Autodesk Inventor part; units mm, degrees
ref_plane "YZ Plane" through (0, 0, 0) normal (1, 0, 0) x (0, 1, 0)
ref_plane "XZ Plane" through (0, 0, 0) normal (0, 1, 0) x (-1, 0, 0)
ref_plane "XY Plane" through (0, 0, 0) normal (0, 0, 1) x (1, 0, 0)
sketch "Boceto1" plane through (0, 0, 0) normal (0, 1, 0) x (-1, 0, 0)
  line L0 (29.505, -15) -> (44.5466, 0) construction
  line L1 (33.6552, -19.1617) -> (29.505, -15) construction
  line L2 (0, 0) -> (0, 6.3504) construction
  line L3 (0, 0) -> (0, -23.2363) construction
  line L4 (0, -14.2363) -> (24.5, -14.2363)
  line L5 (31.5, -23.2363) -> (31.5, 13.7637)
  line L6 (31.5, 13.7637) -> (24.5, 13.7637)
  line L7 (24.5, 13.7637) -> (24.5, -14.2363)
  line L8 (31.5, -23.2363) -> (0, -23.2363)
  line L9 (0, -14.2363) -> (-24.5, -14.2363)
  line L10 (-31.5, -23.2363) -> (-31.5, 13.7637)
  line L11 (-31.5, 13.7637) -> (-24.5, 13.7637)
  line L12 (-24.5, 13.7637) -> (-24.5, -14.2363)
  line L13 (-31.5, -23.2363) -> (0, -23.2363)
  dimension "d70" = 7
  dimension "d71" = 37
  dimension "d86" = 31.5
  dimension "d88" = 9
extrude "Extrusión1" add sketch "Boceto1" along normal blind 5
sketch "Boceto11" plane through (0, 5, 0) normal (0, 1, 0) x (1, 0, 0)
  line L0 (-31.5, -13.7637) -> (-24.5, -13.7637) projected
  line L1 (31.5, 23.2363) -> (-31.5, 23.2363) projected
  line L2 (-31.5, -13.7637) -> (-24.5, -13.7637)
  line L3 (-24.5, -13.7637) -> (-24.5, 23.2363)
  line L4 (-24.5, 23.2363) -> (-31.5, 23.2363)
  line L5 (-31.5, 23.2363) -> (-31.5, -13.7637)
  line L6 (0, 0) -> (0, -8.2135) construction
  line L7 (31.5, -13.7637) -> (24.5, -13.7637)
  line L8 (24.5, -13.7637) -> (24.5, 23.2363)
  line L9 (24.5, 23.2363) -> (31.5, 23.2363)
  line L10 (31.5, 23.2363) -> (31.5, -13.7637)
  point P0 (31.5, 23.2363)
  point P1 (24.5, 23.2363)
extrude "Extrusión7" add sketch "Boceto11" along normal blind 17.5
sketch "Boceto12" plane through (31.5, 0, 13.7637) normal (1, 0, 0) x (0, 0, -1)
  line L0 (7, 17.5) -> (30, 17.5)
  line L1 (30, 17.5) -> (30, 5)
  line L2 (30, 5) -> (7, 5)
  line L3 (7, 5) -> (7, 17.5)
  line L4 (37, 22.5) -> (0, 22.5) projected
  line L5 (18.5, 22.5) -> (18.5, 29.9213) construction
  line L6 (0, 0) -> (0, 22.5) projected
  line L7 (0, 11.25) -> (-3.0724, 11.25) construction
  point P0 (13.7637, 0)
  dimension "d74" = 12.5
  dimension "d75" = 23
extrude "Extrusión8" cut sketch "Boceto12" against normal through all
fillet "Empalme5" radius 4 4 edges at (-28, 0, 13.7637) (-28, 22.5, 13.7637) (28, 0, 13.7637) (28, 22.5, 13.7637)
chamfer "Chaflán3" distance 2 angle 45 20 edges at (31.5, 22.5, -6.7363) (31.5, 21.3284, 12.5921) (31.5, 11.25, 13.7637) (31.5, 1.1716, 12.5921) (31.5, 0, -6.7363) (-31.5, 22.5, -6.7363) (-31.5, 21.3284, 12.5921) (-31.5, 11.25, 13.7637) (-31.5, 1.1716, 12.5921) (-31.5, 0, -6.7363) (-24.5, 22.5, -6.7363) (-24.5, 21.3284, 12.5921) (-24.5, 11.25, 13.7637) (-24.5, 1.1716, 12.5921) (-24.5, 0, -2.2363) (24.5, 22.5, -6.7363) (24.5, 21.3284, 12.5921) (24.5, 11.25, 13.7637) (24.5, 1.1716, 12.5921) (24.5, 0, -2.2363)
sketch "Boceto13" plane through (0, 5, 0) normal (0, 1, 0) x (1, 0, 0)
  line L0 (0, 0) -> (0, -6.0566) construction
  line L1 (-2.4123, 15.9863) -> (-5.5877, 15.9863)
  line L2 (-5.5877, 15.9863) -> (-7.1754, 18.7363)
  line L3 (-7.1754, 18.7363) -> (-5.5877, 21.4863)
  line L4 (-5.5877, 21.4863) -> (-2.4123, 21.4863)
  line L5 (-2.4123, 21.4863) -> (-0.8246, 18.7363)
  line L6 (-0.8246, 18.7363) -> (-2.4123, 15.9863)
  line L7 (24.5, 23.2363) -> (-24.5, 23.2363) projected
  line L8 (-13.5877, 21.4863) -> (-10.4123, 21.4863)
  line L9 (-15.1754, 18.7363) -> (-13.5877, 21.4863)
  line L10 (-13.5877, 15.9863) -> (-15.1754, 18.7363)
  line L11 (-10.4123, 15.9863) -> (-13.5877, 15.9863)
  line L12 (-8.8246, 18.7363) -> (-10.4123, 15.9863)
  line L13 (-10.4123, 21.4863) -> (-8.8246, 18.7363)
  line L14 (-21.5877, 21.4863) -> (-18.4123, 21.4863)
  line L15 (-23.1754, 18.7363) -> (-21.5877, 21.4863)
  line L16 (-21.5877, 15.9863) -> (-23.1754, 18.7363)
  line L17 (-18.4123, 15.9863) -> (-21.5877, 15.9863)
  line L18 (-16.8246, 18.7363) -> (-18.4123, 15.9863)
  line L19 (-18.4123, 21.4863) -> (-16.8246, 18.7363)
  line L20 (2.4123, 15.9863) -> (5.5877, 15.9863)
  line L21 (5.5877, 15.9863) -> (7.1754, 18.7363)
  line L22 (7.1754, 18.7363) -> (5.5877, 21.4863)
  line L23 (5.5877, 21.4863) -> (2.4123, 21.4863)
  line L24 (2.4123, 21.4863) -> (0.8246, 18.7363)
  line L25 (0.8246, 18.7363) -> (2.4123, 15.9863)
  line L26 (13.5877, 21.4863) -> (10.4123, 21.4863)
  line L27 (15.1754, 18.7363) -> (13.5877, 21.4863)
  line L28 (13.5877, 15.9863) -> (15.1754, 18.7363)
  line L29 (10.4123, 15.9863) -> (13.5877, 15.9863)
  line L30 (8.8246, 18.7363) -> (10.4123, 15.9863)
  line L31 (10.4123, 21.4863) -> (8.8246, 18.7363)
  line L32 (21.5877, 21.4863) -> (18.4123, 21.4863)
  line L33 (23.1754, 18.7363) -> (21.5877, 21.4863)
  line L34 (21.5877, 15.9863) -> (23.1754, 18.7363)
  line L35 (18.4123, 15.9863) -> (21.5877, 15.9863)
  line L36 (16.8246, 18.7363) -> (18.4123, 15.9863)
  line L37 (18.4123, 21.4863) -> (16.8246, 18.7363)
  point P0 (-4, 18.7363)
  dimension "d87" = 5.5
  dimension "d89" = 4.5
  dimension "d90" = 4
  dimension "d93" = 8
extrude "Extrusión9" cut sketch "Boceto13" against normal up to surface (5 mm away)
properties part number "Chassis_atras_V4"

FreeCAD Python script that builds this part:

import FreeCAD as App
import Part
import Sketcher

V = App.Vector
Q = App.Units.Quantity


def edges_at(feature, points):
    """Names of the edges that pass closest to the given points."""
    edges = feature.Shape.Edges
    near = lambda p: min(range(len(edges)), key=lambda i: edges[i].distToShape(Part.Vertex(*p))[0])
    return sorted({f"Edge{near(p) + 1}" for p in points})


def add_polygon(sketch, points):
    """Adds a closed chain of lines whose ends are joined by coincident constraints."""
    first, n = sketch.GeometryCount, len(points)
    for a, b in zip(points, points[1:] + points[:1]):
        sketch.addGeometry(Part.LineSegment(App.Vector(*a, 0), App.Vector(*b, 0)), False)
    for i in range(n):
        sketch.addConstraint(Sketcher.Constraint("Coincident", first + i, 2, first + (i + 1) % n, 1))

doc = App.newDocument("Part")
params = doc.addObject("Spreadsheet::Sheet", "Params")
for row, (alias, value) in enumerate([
    ("sketch1_width", "7 mm"),
    ("sketch1_height", "37 mm"),
    ("pad1_length", "5 mm"),
    ("sketch2_width", "7 mm"),
    ("sketch2_height", "37 mm"),
    ("pad2_length", "17.5 mm"),
    ("sketch3_height", "23 mm"),
    ("sketch3_width", "12.5 mm"),
    ("fillet_radius", "4 mm"),
    ("chamfer_size", "2 mm"),
    ("pocket2_length", "5 mm"),
], start=1):
    params.set(f"A{row}", alias)
    params.set(f"B{row}", "=" + value)
    params.setAlias(f"B{row}", alias)

body = doc.addObject("PartDesign::Body", "Body")

# Sketch on XZ plane
sketch1 = doc.addObject("Sketcher::SketchObject", "Sketch")
body.addObject(sketch1)
sketch1.AttachmentSupport = (doc.XZ_Plane, [""])
sketch1.MapMode = "FlatFace"
add_polygon(sketch1, [(-24, -14), (24, -14), (24, 14), (32, 14), (32, -23), (-32, -23), (-32, 14), (-24, 14)])  # lines 0-7
sketch1.addConstraint([
    Sketcher.Constraint("Horizontal", 0),
    Sketcher.Constraint("Vertical", 1),
    Sketcher.Constraint("Horizontal", 2),
    Sketcher.Constraint("Vertical", 3),
    Sketcher.Constraint("Horizontal", 4),
    Sketcher.Constraint("Vertical", 5),
    Sketcher.Constraint("Horizontal", 6),
    Sketcher.Constraint("Vertical", 7),
    Sketcher.Constraint("Symmetric", 2, 2, 5, 2, -2),
    Sketcher.Constraint("Equal", 2, 6),
    Sketcher.Constraint("DistanceX", 2, 1, 2, 2, 7.0),
    Sketcher.Constraint("DistanceY", 3, 2, 3, 1, 37.0),
    Sketcher.Constraint("DistanceY", 3, 2, 0, 2, 9.0),
    Sketcher.Constraint("DistanceX", -1, 1, 2, 2, 31.5),
    Sketcher.Constraint("DistanceY", 0, 2, -1, 1, 14.2363),
])
sketch1.setExpression("Constraints[18]", "Params.sketch1_width")
sketch1.setExpression("Constraints[19]", "Params.sketch1_height")
pad1 = doc.addObject("PartDesign::Pad", "Pad")
body.addObject(pad1)
pad1.Profile = sketch1
pad1.setExpression("Length", "Params.pad1_length")
pad1.Reversed = True

# Sketch on XZ plane
sketch2 = doc.addObject("Sketcher::SketchObject", "Sketch001")
body.addObject(sketch2)
sketch2.AttachmentSupport = (doc.XZ_Plane, [""])
sketch2.MapMode = "FlatFace"
sketch2.AttachmentOffset = App.Placement(V(0, 0, -5), App.Rotation())
add_polygon(sketch2, [(-32, -23), (-32, 14), (-24, 14), (-24, -23)])  # lines 0-3
add_polygon(sketch2, [(32, -23), (24, -23), (24, 14), (32, 14)])  # lines 4-7
sketch2.addConstraint([
    Sketcher.Constraint("Vertical", 0),
    Sketcher.Constraint("Horizontal", 1),
    Sketcher.Constraint("Vertical", 2),
    Sketcher.Constraint("Horizontal", 3),
    Sketcher.Constraint("Horizontal", 4),
    Sketcher.Constraint("Vertical", 5),
    Sketcher.Constraint("Horizontal", 6),
    Sketcher.Constraint("Vertical", 7),
    Sketcher.Constraint("Symmetric", 2, 2, 4, 2, -2),
    Sketcher.Constraint("Symmetric", 0, 2, 6, 2, -2),
    Sketcher.Constraint("DistanceX", 1, 1, 1, 2, 7.0),
    Sketcher.Constraint("DistanceY", 0, 1, 0, 2, 37.0),
    Sketcher.Constraint("DistanceX", 2, 2, 4, 2, 49.0),
    Sketcher.Constraint("DistanceY", -1, 1, 0, 2, 13.7637),
])
sketch2.setExpression("Constraints[18]", "Params.sketch2_width")
sketch2.setExpression("Constraints[19]", "Params.sketch2_height")
pad2 = doc.addObject("PartDesign::Pad", "Pad001")
body.addObject(pad2)
pad2.Profile = sketch2
pad2.setExpression("Length", "Params.pad2_length")
pad2.Reversed = True

# Sketch on YZ plane
sketch3 = doc.addObject("Sketcher::SketchObject", "Sketch002")
body.addObject(sketch3)
sketch3.AttachmentSupport = (doc.YZ_Plane, [""])
sketch3.MapMode = "FlatFace"
sketch3.AttachmentOffset = App.Placement(V(0, 0, 31.5), App.Rotation())
add_polygon(sketch3, [(18, -16), (18, 7), (5, 7), (5, -16)])  # lines 0-3
sketch3.addConstraint([
    Sketcher.Constraint("Vertical", 0),
    Sketcher.Constraint("Horizontal", 1),
    Sketcher.Constraint("Vertical", 2),
    Sketcher.Constraint("Horizontal", 3),
    Sketcher.Constraint("DistanceY", 0, 1, 0, 2, 23.0),
    Sketcher.Constraint("DistanceX", 1, 2, 1, 1, 12.5),
    Sketcher.Constraint("DistanceX", -1, 1, 1, 2, 5.0),
    Sketcher.Constraint("DistanceY", -1, 1, 0, 2, 6.7637),
])
sketch3.setExpression("Constraints[8]", "Params.sketch3_height")
sketch3.setExpression("Constraints[9]", "Params.sketch3_width")
pocket1 = doc.addObject("PartDesign::Pocket", "Pocket")
body.addObject(pocket1)
pocket1.Profile = sketch3
pocket1.Type = "ThroughAll"
doc.recompute()

fillet = doc.addObject("PartDesign::Fillet", "Fillet")
body.addObject(fillet)
fillet.Base = (pocket1, edges_at(pocket1, [
    (-28, 0, 13.764),
    (-28, 22.5, 13.764),
    (28, 0, 13.764),
    (28, 22.5, 13.764),
]))
fillet.setExpression("Radius", "Params.fillet_radius")
doc.recompute()

chamfer = doc.addObject("PartDesign::Chamfer", "Chamfer")
body.addObject(chamfer)
chamfer.Base = (fillet, edges_at(fillet, [
    (31.5, 22.5, -6.736),
    (31.5, 21.328, 12.592),
    (31.5, 11.25, 13.764),
    (31.5, 1.172, 12.592),
    (31.5, 0, -6.736),
    (-31.5, 22.5, -6.736),
    (-31.5, 21.328, 12.592),
    (-31.5, 11.25, 13.764),
    (-31.5, 1.172, 12.592),
    (-31.5, 0, -6.736),
    (-24.5, 22.5, -6.736),
    (-24.5, 21.328, 12.592),
    (-24.5, 11.25, 13.764),
    (-24.5, 1.172, 12.592),
    (-24.5, 0, -2.236),
    (24.5, 22.5, -6.736),
    (24.5, 21.328, 12.592),
    (24.5, 11.25, 13.764),
    (24.5, 1.172, 12.592),
    (24.5, 0, -2.236),
]))
chamfer.setExpression("Size", "Params.chamfer_size")

# Sketch on XZ plane
sketch4 = doc.addObject("Sketcher::SketchObject", "Sketch003")
body.addObject(sketch4)
sketch4.AttachmentSupport = (doc.XZ_Plane, [""])
sketch4.MapMode = "FlatFace"
sketch4.AttachmentOffset = App.Placement(V(0, 0, -5), App.Rotation())
add_polygon(sketch4, [(-5.6, -16), (-2.4, -16), (-0.8, -18.7), (-2.4, -21.5), (-5.6, -21.5), (-7.2, -18.7)])  # lines 0-5
add_polygon(sketch4, [(-10.4, -21.5), (-13.6, -21.5), (-15.2, -18.7), (-13.6, -16), (-10.4, -16), (-8.8, -18.7)])  # lines 6-11
add_polygon(sketch4, [(-18.4, -21.5), (-21.6, -21.5), (-23.2, -18.7), (-21.6, -16), (-18.4, -16), (-16.8, -18.7)])  # lines 12-17
add_polygon(sketch4, [(0.8, -18.7), (2.4, -16), (5.6, -16), (7.2, -18.7), (5.6, -21.5), (2.4, -21.5)])  # lines 18-23
add_polygon(sketch4, [(15.2, -18.7), (13.6, -21.5), (10.4, -21.5), (8.8, -18.7), (10.4, -16), (13.6, -16)])  # lines 24-29
add_polygon(sketch4, [(23.2, -18.7), (21.6, -21.5), (18.4, -21.5), (16.8, -18.7), (18.4, -16), (21.6, -16)])  # lines 30-35
sketch4.addConstraint([
    Sketcher.Constraint("Horizontal", 0),
    Sketcher.Constraint("Horizontal", 3),
    Sketcher.Constraint("Horizontal", 6),
    Sketcher.Constraint("Horizontal", 9),
    Sketcher.Constraint("Horizontal", 12),
    Sketcher.Constraint("Horizontal", 15),
    Sketcher.Constraint("Horizontal", 19),
    Sketcher.Constraint("Horizontal", 22),
    Sketcher.Constraint("Horizontal", 25),
    Sketcher.Constraint("Horizontal", 28),
    Sketcher.Constraint("Horizontal", 31),
    Sketcher.Constraint("Horizontal", 34),
    Sketcher.Constraint("Symmetric", 0, 2, 18, 2, -2),
    Sketcher.Constraint("Symmetric", 4, 2, 20, 2, -2),
    Sketcher.Constraint("Symmetric", 3, 2, 21, 2, -2),
    Sketcher.Constraint("Symmetric", 1, 2, 23, 2, -2),
    Sketcher.Constraint("Symmetric", 6, 2, 24, 2, -2),
    Sketcher.Constraint("Symmetric", 10, 2, 26, 2, -2),
    Sketcher.Constraint("Symmetric", 9, 2, 27, 2, -2),
    Sketcher.Constraint("Symmetric", 7, 2, 29, 2, -2),
    Sketcher.Constraint("Symmetric", 12, 2, 30, 2, -2),
    Sketcher.Constraint("Symmetric", 16, 2, 32, 2, -2),
    Sketcher.Constraint("Symmetric", 15, 2, 33, 2, -2),
    Sketcher.Constraint("Symmetric", 13, 2, 35, 2, -2),
    Sketcher.Constraint("Parallel", 1, 4),
    Sketcher.Constraint("Parallel", 2, 5),
    Sketcher.Constraint("Parallel", 4, 7),
    Sketcher.Constraint("Parallel", 5, 8),
    Sketcher.Constraint("Parallel", 7, 10),
    Sketcher.Constraint("Parallel", 8, 11),
    Sketcher.Constraint("Parallel", 10, 13),
    Sketcher.Constraint("Parallel", 11, 14),
    Sketcher.Constraint("Parallel", 13, 16),
    Sketcher.Constraint("Parallel", 14, 17),
    Sketcher.Constraint("Parallel", 17, 18),
    Sketcher.Constraint("Parallel", 16, 20),
    Sketcher.Constraint("Parallel", 20, 23),
    Sketcher.Constraint("Parallel", 23, 26),
    Sketcher.Constraint("Parallel", 26, 29),
    Sketcher.Constraint("Parallel", 29, 32),
    Sketcher.Constraint("Parallel", 32, 35),
    Sketcher.Constraint("Horizontal", 1, 2, 4, 2),
    Sketcher.Constraint("Horizontal", 3, 2, 6, 2),
    Sketcher.Constraint("Horizontal", 4, 2, 7, 2),
    Sketcher.Constraint("Horizontal", 5, 2, 8, 2),
    Sketcher.Constraint("Horizontal", 7, 2, 10, 2),
    Sketcher.Constraint("Horizontal", 11, 2, 12, 2),
    Sketcher.Constraint("Horizontal", 10, 2, 13, 2),
    Sketcher.Constraint("Horizontal", 9, 2, 14, 2),
    Sketcher.Constraint("Horizontal", 13, 2, 16, 2),
    Sketcher.Constraint("Vertical", 0, 2, 2, 2),
    Sketcher.Constraint("Equal", 3, 6),
    Sketcher.Constraint("Equal", 9, 12),
    Sketcher.Constraint("DistanceX", 6, 2, 3, 2, 8.0),
    Sketcher.Constraint("DistanceX", 12, 2, 6, 2, 8.0),
    Sketcher.Constraint("DistanceX", 5, 2, 18, 2, 8.0),
    Sketcher.Constraint("DistanceY", 2, 2, 0, 2, 5.5),
    Sketcher.Constraint("Angle", 1, Q("-60.0002 deg")),
    Sketcher.Constraint("DistanceX", 0, 1, 0, 2, 3.1754),
    Sketcher.Constraint("DistanceY", 0, 2, -1, 1, 15.9863),
])
pocket2 = doc.addObject("PartDesign::Pocket", "Pocket001")
body.addObject(pocket2)
pocket2.Profile = sketch4
pocket2.setExpression("Length", "Params.pocket2_length")
pocket2.Reversed = True

doc.recompute()
